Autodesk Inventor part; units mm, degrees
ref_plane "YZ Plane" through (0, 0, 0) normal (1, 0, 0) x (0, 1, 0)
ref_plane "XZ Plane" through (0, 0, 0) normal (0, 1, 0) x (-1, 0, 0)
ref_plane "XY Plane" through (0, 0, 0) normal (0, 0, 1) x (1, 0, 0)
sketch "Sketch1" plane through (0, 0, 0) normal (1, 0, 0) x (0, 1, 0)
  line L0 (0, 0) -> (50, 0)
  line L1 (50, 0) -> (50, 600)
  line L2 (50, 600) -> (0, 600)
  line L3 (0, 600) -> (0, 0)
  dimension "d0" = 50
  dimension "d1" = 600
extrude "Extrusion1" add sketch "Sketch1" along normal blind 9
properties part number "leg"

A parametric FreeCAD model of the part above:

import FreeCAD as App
import Part
import Sketcher

doc = App.newDocument("Part")
body = doc.addObject("PartDesign::Body", "Body")

# Sketch on YZ plane
sketch1 = doc.addObject("Sketcher::SketchObject", "Sketch")
body.addObject(sketch1)
sketch1.AttachmentSupport = (doc.YZ_Plane, [""])
sketch1.MapMode = "FlatFace"
sketch1.addGeometry(Part.LineSegment(App.Vector(0, 600, 0), App.Vector(0, 0, 0)), False)
sketch1.addGeometry(Part.LineSegment(App.Vector(0, 0, 0), App.Vector(50, 0, 0)), False)
sketch1.addGeometry(Part.LineSegment(App.Vector(50, 0, 0), App.Vector(50, 600, 0)), False)
sketch1.addGeometry(Part.LineSegment(App.Vector(50, 600, 0), App.Vector(0, 600, 0)), False)
sketch1.addConstraint(Sketcher.Constraint("Coincident", 0, 2, 1, 1))
sketch1.addConstraint(Sketcher.Constraint("Coincident", 1, 2, 2, 1))
sketch1.addConstraint(Sketcher.Constraint("Coincident", 2, 2, 3, 1))
sketch1.addConstraint(Sketcher.Constraint("Coincident", 3, 2, 0, 1))
sketch1.addConstraint(Sketcher.Constraint("Vertical", 0))
sketch1.addConstraint(Sketcher.Constraint("Horizontal", 1))
sketch1.addConstraint(Sketcher.Constraint("Vertical", 2))
sketch1.addConstraint(Sketcher.Constraint("Horizontal", 3))
sketch1.addConstraint(Sketcher.Constraint("Coincident", 0, 2, -1, 1))
sketch1.addConstraint(Sketcher.Constraint("DistanceX", 1, 1, 1, 2, 50.0))
sketch1.addConstraint(Sketcher.Constraint("DistanceY", 0, 2, 0, 1, 600.0))
pad1 = doc.addObject("PartDesign::Pad", "Pad")
body.addObject(pad1)
pad1.Profile = sketch1
pad1.Length = 9

doc.recompute()
